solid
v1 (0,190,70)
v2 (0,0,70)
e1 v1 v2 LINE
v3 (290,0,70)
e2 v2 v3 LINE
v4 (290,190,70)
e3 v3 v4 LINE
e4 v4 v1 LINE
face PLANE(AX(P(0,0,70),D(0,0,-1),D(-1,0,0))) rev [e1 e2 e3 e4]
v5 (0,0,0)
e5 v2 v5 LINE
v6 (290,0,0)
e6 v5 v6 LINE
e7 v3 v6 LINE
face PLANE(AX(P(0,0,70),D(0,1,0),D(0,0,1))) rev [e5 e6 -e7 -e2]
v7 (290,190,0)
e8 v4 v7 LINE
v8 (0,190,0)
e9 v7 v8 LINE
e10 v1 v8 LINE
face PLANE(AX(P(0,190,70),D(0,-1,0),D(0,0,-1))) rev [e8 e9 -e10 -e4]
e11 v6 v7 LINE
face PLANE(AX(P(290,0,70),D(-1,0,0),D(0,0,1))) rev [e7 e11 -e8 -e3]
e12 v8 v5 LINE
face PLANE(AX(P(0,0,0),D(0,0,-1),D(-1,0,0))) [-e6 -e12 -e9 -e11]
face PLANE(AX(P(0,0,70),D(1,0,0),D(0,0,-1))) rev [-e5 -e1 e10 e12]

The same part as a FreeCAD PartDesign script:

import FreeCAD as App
import Part
import Sketcher
from FreeCAD import Vector


def add_polygon(sketch, points):
    """Adds a closed chain of lines whose ends are joined by coincident constraints."""
    first, n = sketch.GeometryCount, len(points)
    for a, b in zip(points, points[1:] + points[:1]):
        sketch.addGeometry(Part.LineSegment(App.Vector(*a, 0), App.Vector(*b, 0)), False)
    for i in range(n):
        sketch.addConstraint(Sketcher.Constraint("Coincident", first + i, 2, first + (i + 1) % n, 1))

doc = App.newDocument("Part")
body = doc.addObject("PartDesign::Body", "Body")

sketch1 = doc.addObject("Sketcher::SketchObject", "Sketch")
body.addObject(sketch1)
sketch1.AttachmentSupport = (doc.XY_Plane, [""])
sketch1.MapMode = "FlatFace"
add_polygon(sketch1, [(0, 190), (0, 0), (290, 0), (290, 190)])
sketch1.addConstraint([
    Sketcher.Constraint("Vertical", 0),
    Sketcher.Constraint("Horizontal", 1),
    Sketcher.Constraint("Vertical", 2),
    Sketcher.Constraint("Horizontal", 3),
    Sketcher.Constraint("Coincident", 0, 2, -1, 1),
    Sketcher.Constraint("DistanceX", 1, 1, 1, 2, 290.0),
    Sketcher.Constraint("DistanceY", 0, 2, 0, 1, 190.0),
])
pad1 = doc.addObject("PartDesign::Pad", "Pad")
body.addObject(pad1)
pad1.Profile = sketch1
pad1.Length = 70

doc.recompute()
